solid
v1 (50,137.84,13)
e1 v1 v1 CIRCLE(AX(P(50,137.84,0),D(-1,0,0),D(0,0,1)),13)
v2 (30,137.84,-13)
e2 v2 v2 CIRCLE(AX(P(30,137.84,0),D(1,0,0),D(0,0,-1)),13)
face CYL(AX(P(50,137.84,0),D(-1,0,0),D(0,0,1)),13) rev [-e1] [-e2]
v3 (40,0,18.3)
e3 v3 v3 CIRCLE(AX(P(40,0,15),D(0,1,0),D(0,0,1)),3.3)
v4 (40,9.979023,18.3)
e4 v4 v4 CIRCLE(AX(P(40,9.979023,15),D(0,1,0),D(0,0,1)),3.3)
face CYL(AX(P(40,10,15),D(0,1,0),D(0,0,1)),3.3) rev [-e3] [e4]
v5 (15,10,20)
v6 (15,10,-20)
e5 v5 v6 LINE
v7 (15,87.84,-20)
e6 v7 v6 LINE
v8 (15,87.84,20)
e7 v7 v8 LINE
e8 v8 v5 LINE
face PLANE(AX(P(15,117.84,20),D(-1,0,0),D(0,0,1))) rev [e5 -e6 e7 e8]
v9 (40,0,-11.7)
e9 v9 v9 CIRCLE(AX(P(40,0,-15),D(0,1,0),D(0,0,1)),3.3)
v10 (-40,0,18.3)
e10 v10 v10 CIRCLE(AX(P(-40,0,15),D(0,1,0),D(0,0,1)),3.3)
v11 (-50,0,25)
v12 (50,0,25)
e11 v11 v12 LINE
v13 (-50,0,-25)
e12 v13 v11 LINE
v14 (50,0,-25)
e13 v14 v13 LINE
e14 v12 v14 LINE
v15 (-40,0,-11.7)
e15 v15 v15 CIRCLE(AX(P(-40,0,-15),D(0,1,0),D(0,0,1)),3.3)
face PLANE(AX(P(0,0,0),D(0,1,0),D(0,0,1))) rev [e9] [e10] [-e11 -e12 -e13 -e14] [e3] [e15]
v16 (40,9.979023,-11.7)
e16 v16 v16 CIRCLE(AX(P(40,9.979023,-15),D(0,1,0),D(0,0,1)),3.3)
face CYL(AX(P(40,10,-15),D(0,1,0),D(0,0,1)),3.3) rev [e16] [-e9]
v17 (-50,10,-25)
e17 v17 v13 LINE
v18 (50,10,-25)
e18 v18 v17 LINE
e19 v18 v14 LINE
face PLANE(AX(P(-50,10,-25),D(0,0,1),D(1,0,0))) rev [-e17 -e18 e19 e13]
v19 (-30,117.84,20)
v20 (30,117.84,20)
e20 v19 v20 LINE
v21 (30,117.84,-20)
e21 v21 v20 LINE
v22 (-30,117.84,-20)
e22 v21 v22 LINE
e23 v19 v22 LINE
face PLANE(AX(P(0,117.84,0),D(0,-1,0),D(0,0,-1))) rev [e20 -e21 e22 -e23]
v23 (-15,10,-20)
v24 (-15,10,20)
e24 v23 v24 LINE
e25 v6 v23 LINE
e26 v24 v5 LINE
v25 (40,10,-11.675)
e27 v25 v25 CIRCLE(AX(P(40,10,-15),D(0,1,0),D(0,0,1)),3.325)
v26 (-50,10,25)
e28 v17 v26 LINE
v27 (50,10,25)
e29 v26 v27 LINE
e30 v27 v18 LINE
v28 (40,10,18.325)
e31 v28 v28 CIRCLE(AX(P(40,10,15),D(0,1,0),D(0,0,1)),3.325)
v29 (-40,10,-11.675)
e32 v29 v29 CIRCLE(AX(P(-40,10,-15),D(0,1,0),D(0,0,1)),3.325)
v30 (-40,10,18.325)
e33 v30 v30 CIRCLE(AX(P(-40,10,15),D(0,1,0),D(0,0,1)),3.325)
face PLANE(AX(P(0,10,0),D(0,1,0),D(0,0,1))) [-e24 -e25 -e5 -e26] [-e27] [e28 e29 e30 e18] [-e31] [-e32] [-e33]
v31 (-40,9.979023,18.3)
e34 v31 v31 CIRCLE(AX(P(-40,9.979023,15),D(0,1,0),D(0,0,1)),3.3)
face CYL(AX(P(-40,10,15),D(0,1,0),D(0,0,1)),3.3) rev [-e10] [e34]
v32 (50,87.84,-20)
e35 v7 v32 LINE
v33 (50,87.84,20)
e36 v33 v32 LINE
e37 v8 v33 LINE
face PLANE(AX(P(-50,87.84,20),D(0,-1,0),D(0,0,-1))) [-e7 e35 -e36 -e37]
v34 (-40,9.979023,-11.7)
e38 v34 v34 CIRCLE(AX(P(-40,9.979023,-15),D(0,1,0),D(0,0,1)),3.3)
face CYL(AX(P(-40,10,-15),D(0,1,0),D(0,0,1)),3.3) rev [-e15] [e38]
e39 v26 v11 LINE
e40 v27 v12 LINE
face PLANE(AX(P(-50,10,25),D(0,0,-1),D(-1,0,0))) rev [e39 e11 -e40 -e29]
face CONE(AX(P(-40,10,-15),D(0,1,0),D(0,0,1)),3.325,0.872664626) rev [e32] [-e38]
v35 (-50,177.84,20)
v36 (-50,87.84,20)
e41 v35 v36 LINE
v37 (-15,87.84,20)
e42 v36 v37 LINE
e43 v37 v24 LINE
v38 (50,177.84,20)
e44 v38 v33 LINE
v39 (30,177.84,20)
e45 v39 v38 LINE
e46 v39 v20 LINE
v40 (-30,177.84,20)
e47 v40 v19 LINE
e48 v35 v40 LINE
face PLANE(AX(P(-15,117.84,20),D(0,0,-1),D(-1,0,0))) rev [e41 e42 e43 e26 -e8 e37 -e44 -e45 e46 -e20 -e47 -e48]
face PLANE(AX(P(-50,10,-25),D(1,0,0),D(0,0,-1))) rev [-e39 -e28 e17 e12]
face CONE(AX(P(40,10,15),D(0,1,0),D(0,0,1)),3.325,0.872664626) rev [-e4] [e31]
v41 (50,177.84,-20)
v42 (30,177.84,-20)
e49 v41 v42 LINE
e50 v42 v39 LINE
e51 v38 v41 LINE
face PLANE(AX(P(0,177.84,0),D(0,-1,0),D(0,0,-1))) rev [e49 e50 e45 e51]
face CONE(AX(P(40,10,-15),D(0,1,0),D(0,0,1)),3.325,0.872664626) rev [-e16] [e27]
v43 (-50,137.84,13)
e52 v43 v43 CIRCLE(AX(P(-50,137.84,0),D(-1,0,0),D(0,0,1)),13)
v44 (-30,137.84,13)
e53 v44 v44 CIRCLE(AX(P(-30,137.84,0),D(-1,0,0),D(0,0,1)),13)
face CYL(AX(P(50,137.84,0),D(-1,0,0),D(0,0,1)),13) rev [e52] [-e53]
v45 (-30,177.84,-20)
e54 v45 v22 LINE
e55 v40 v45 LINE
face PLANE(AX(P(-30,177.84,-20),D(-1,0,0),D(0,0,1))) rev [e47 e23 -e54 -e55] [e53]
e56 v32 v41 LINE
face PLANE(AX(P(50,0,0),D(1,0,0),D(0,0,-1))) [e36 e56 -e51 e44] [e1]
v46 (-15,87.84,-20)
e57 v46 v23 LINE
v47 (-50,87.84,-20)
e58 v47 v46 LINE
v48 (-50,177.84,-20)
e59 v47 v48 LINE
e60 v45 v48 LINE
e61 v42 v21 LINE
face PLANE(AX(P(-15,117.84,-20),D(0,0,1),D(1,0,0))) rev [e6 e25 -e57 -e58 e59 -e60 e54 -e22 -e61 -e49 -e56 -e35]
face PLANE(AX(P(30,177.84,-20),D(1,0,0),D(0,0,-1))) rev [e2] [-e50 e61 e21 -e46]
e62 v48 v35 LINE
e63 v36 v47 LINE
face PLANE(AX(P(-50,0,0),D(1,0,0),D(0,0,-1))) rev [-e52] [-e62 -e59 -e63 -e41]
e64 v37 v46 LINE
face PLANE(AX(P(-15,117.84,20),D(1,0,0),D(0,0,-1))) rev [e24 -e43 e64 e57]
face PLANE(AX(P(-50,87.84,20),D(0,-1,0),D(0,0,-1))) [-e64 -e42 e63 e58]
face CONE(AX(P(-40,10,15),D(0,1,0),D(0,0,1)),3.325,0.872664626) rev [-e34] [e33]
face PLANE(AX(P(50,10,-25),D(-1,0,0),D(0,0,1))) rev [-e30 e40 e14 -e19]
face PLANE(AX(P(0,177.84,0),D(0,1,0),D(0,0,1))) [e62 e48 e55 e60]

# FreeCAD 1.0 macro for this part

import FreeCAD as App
import Part
import Sketcher

V = App.Vector
Q = App.Units.Quantity


def add_polygon(sketch, points):
    """Adds a closed chain of lines whose ends are joined by coincident constraints."""
    first, n = sketch.GeometryCount, len(points)
    for a, b in zip(points, points[1:] + points[:1]):
        sketch.addGeometry(Part.LineSegment(App.Vector(*a, 0), App.Vector(*b, 0)), False)
    for i in range(n):
        sketch.addConstraint(Sketcher.Constraint("Coincident", first + i, 2, first + (i + 1) % n, 1))

doc = App.newDocument("Part")
params = doc.addObject("Spreadsheet::Sheet", "Params")
for row, (alias, value) in enumerate([
    ("sketch1_width", "100 mm"),
    ("sketch1_height", "50 mm"),
    ("pad1_length", "10 mm"),
    ("sketch2_diameter", "6.6 mm"),
    ("hole_diameter", "6.6 mm"),
    ("hole_csink_diameter", "6.65 mm"),
    ("sketch3_width", "30 mm"),
    ("sketch3_height", "40 mm"),
    ("pad2_length", "107.84 mm"),
    ("sketch4_width", "30 mm"),
    ("sketch4_height", "40 mm"),
    ("pad3_length", "50 mm"),
    ("pad3_length2", "50 mm"),
    ("sketch5_width", "20 mm"),
    ("sketch5_height", "40 mm"),
    ("pad4_length", "60 mm"),
    ("sketch6_diameter", "26 mm"),
], start=1):
    params.set(f"A{row}", alias)
    params.set(f"B{row}", "=" + value)
    params.setAlias(f"B{row}", alias)

body = doc.addObject("PartDesign::Body", "Body")

# Sketch on XZ plane
sketch1 = body.newObject("Sketcher::SketchObject", "Sketch")
sketch1.AttachmentSupport = (doc.getObject("XZ_Plane"), [""])
sketch1.MapMode = "FlatFace"
add_polygon(sketch1, [(-50, -25), (-50, 25), (50, 25), (50, -25)])  # lines 0-3
sketch1.addConstraint(Sketcher.Constraint("Vertical", 0))
sketch1.addConstraint(Sketcher.Constraint("Horizontal", 1))
sketch1.addConstraint(Sketcher.Constraint("Vertical", 2))
sketch1.addConstraint(Sketcher.Constraint("Horizontal", 3))
sketch1.addConstraint(Sketcher.Constraint("Symmetric", 0, 2, 2, 2, -1, 1))
sketch1.addConstraint(Sketcher.Constraint("DistanceX", 1, 1, 1, 2, Q("100 mm")))
sketch1.addConstraint(Sketcher.Constraint("DistanceY", 0, 1, 0, 2, Q("50 mm")))
sketch1.setExpression("Constraints[9]", "Params.sketch1_width")
sketch1.setExpression("Constraints[10]", "Params.sketch1_height")
pad1 = body.newObject("PartDesign::Pad", "Pad")
pad1.Profile = sketch1
pad1.setExpression("Length", "Params.pad1_length")
pad1.Reversed = True

# Sketch on XZ plane
sketch2 = body.newObject("Sketcher::SketchObject", "Sketch001")
sketch2.AttachmentSupport = (doc.getObject("XZ_Plane"), [""])
sketch2.MapMode = "FlatFace"
sketch2.AttachmentOffset = App.Placement(V(0, 0, -10), App.Rotation())
sketch2.addGeometry(Part.Circle(V(-40, -15, 0), V(0, 0, 1), 3.3), False)
sketch2.addGeometry(Part.Circle(V(40, -15, 0), V(0, 0, 1), 3.3), False)
sketch2.addGeometry(Part.Circle(V(-40, 15, 0), V(0, 0, 1), 3.3), False)
sketch2.addGeometry(Part.Circle(V(40, 15, 0), V(0, 0, 1), 3.3), False)
sketch2.addConstraint(Sketcher.Constraint("Equal", 0, 1))
sketch2.addConstraint(Sketcher.Constraint("Equal", 1, 2))
sketch2.addConstraint(Sketcher.Constraint("Equal", 2, 3))
sketch2.addConstraint(Sketcher.Constraint("Symmetric", 1, 3, 2, 3, -1, 1))
sketch2.addConstraint(Sketcher.Constraint("Symmetric", 0, 3, 3, 3, -1, 1))
sketch2.addConstraint(Sketcher.Constraint("Symmetric", 0, 3, 1, 3, -2))
sketch2.addConstraint(Sketcher.Constraint("Diameter", 0, Q("6.6 mm")))
sketch2.addConstraint(Sketcher.Constraint("DistanceX", 0, 3, -1, 1, Q("40 mm")))
sketch2.addConstraint(Sketcher.Constraint("DistanceY", 0, 3, -1, 1, Q("15 mm")))
sketch2.setExpression("Constraints[6]", "Params.sketch2_diameter")
doc.recompute()
hole = body.newObject("PartDesign::Hole", "Hole")
hole.Profile = sketch2
hole.ThreadType = "None"
hole.setExpression("Diameter", "Params.hole_diameter")
hole.DepthType = "ThroughAll"
hole.HoleCutType = "Countersink"
hole.setExpression("HoleCutDiameter", "Params.hole_csink_diameter")
hole.HoleCutCountersinkAngle = 100
hole.Reversed = True

# Sketch on XZ plane
sketch3 = body.newObject("Sketcher::SketchObject", "Sketch002")
sketch3.AttachmentSupport = (doc.getObject("XZ_Plane"), [""])
sketch3.MapMode = "FlatFace"
sketch3.AttachmentOffset = App.Placement(V(0, 0, -10), App.Rotation())
add_polygon(sketch3, [(-15, -20), (-15, 20), (15, 20), (15, -20)])  # lines 0-3
sketch3.addConstraint(Sketcher.Constraint("Vertical", 0))
sketch3.addConstraint(Sketcher.Constraint("Horizontal", 1))
sketch3.addConstraint(Sketcher.Constraint("Vertical", 2))
sketch3.addConstraint(Sketcher.Constraint("Horizontal", 3))
sketch3.addConstraint(Sketcher.Constraint("Symmetric", 0, 2, 2, 2, -1, 1))
sketch3.addConstraint(Sketcher.Constraint("DistanceX", 1, 1, 1, 2, Q("30 mm")))
sketch3.addConstraint(Sketcher.Constraint("DistanceY", 0, 1, 0, 2, Q("40 mm")))
sketch3.setExpression("Constraints[9]", "Params.sketch3_width")
sketch3.setExpression("Constraints[10]", "Params.sketch3_height")
pad2 = body.newObject("PartDesign::Pad", "Pad001")
pad2.Profile = sketch3
pad2.setExpression("Length", "Params.pad2_length")
pad2.Reversed = True

# Sketch on YZ plane
sketch4 = body.newObject("Sketcher::SketchObject", "Sketch003")
sketch4.AttachmentSupport = (doc.getObject("YZ_Plane"), [""])
sketch4.MapMode = "FlatFace"
add_polygon(sketch4, [(118, 20), (88, 20), (88, -20), (118, -20)])  # lines 0-3
sketch4.addConstraint(Sketcher.Constraint("Horizontal", 0))
sketch4.addConstraint(Sketcher.Constraint("Vertical", 1))
sketch4.addConstraint(Sketcher.Constraint("Horizontal", 2))
sketch4.addConstraint(Sketcher.Constraint("Vertical", 3))
sketch4.addConstraint(Sketcher.Constraint("DistanceX", 0, 2, 0, 1, Q("30 mm")))
sketch4.addConstraint(Sketcher.Constraint("DistanceY", 1, 2, 1, 1, Q("40 mm")))
sketch4.addConstraint(Sketcher.Constraint("DistanceY", -1, 1, 0, 2, Q("20 mm")))
sketch4.addConstraint(Sketcher.Constraint("DistanceX", -1, 1, 0, 2, Q("87.84 mm")))
sketch4.setExpression("Constraints[8]", "Params.sketch4_width")
sketch4.setExpression("Constraints[9]", "Params.sketch4_height")
pad3 = body.newObject("PartDesign::Pad", "Pad002")
pad3.Profile = sketch4
pad3.Type = "TwoLengths"
pad3.setExpression("Length", "Params.pad3_length")
pad3.setExpression("Length2", "Params.pad3_length2")

# Sketch on XZ plane
sketch5 = body.newObject("Sketcher::SketchObject", "Sketch004")
sketch5.AttachmentSupport = (doc.getObject("XZ_Plane"), [""])
sketch5.MapMode = "FlatFace"
sketch5.AttachmentOffset = App.Placement(V(0, 0, -117.84), App.Rotation())
add_polygon(sketch5, [(-50, -20), (-50, 20), (-30, 20), (-30, -20)])  # lines 0-3
add_polygon(sketch5, [(30, -20), (30, 20), (50, 20), (50, -20)])  # lines 4-7
sketch5.addConstraint(Sketcher.Constraint("Vertical", 0))
sketch5.addConstraint(Sketcher.Constraint("Horizontal", 1))
sketch5.addConstraint(Sketcher.Constraint("Vertical", 2))
sketch5.addConstraint(Sketcher.Constraint("Horizontal", 3))
sketch5.addConstraint(Sketcher.Constraint("Vertical", 4))
sketch5.addConstraint(Sketcher.Constraint("Horizontal", 5))
sketch5.addConstraint(Sketcher.Constraint("Vertical", 6))
sketch5.addConstraint(Sketcher.Constraint("Horizontal", 7))
sketch5.addConstraint(Sketcher.Constraint("Symmetric", 2, 2, 4, 2, -1, 1))
sketch5.addConstraint(Sketcher.Constraint("Symmetric", 0, 2, 6, 2, -1, 1))
sketch5.addConstraint(Sketcher.Constraint("Horizontal", 1, 2, 4, 2))
sketch5.addConstraint(Sketcher.Constraint("DistanceX", 1, 1, 1, 2, Q("20 mm")))
sketch5.addConstraint(Sketcher.Constraint("DistanceY", 0, 1, 0, 2, Q("40 mm")))
sketch5.addConstraint(Sketcher.Constraint("DistanceX", 0, 2, -1, 1, Q("50 mm")))
sketch5.setExpression("Constraints[19]", "Params.sketch5_width")
sketch5.setExpression("Constraints[20]", "Params.sketch5_height")
pad4 = body.newObject("PartDesign::Pad", "Pad003")
pad4.Profile = sketch5
pad4.setExpression("Length", "Params.pad4_length")
pad4.Reversed = True

# Sketch on YZ plane
sketch6 = body.newObject("Sketcher::SketchObject", "Sketch005")
sketch6.AttachmentSupport = (doc.getObject("YZ_Plane"), [""])
sketch6.MapMode = "FlatFace"
sketch6.AttachmentOffset = App.Placement(V(0, 0, -50), App.Rotation())
sketch6.addGeometry(Part.Circle(V(138, 0, 0), V(0, 0, 1), 13), False)
sketch6.addConstraint(Sketcher.Constraint("PointOnObject", 0, 3, -1))
sketch6.addConstraint(Sketcher.Constraint("Diameter", 0, Q("26 mm")))
sketch6.addConstraint(Sketcher.Constraint("DistanceX", -1, 1, 0, 3, Q("137.84 mm")))
sketch6.setExpression("Constraints[1]", "Params.sketch6_diameter")
pocket1 = body.newObject("PartDesign::Pocket", "Pocket")
pocket1.Profile = sketch6
pocket1.Type = "ThroughAll"
pocket1.Reversed = True

doc.recompute()
